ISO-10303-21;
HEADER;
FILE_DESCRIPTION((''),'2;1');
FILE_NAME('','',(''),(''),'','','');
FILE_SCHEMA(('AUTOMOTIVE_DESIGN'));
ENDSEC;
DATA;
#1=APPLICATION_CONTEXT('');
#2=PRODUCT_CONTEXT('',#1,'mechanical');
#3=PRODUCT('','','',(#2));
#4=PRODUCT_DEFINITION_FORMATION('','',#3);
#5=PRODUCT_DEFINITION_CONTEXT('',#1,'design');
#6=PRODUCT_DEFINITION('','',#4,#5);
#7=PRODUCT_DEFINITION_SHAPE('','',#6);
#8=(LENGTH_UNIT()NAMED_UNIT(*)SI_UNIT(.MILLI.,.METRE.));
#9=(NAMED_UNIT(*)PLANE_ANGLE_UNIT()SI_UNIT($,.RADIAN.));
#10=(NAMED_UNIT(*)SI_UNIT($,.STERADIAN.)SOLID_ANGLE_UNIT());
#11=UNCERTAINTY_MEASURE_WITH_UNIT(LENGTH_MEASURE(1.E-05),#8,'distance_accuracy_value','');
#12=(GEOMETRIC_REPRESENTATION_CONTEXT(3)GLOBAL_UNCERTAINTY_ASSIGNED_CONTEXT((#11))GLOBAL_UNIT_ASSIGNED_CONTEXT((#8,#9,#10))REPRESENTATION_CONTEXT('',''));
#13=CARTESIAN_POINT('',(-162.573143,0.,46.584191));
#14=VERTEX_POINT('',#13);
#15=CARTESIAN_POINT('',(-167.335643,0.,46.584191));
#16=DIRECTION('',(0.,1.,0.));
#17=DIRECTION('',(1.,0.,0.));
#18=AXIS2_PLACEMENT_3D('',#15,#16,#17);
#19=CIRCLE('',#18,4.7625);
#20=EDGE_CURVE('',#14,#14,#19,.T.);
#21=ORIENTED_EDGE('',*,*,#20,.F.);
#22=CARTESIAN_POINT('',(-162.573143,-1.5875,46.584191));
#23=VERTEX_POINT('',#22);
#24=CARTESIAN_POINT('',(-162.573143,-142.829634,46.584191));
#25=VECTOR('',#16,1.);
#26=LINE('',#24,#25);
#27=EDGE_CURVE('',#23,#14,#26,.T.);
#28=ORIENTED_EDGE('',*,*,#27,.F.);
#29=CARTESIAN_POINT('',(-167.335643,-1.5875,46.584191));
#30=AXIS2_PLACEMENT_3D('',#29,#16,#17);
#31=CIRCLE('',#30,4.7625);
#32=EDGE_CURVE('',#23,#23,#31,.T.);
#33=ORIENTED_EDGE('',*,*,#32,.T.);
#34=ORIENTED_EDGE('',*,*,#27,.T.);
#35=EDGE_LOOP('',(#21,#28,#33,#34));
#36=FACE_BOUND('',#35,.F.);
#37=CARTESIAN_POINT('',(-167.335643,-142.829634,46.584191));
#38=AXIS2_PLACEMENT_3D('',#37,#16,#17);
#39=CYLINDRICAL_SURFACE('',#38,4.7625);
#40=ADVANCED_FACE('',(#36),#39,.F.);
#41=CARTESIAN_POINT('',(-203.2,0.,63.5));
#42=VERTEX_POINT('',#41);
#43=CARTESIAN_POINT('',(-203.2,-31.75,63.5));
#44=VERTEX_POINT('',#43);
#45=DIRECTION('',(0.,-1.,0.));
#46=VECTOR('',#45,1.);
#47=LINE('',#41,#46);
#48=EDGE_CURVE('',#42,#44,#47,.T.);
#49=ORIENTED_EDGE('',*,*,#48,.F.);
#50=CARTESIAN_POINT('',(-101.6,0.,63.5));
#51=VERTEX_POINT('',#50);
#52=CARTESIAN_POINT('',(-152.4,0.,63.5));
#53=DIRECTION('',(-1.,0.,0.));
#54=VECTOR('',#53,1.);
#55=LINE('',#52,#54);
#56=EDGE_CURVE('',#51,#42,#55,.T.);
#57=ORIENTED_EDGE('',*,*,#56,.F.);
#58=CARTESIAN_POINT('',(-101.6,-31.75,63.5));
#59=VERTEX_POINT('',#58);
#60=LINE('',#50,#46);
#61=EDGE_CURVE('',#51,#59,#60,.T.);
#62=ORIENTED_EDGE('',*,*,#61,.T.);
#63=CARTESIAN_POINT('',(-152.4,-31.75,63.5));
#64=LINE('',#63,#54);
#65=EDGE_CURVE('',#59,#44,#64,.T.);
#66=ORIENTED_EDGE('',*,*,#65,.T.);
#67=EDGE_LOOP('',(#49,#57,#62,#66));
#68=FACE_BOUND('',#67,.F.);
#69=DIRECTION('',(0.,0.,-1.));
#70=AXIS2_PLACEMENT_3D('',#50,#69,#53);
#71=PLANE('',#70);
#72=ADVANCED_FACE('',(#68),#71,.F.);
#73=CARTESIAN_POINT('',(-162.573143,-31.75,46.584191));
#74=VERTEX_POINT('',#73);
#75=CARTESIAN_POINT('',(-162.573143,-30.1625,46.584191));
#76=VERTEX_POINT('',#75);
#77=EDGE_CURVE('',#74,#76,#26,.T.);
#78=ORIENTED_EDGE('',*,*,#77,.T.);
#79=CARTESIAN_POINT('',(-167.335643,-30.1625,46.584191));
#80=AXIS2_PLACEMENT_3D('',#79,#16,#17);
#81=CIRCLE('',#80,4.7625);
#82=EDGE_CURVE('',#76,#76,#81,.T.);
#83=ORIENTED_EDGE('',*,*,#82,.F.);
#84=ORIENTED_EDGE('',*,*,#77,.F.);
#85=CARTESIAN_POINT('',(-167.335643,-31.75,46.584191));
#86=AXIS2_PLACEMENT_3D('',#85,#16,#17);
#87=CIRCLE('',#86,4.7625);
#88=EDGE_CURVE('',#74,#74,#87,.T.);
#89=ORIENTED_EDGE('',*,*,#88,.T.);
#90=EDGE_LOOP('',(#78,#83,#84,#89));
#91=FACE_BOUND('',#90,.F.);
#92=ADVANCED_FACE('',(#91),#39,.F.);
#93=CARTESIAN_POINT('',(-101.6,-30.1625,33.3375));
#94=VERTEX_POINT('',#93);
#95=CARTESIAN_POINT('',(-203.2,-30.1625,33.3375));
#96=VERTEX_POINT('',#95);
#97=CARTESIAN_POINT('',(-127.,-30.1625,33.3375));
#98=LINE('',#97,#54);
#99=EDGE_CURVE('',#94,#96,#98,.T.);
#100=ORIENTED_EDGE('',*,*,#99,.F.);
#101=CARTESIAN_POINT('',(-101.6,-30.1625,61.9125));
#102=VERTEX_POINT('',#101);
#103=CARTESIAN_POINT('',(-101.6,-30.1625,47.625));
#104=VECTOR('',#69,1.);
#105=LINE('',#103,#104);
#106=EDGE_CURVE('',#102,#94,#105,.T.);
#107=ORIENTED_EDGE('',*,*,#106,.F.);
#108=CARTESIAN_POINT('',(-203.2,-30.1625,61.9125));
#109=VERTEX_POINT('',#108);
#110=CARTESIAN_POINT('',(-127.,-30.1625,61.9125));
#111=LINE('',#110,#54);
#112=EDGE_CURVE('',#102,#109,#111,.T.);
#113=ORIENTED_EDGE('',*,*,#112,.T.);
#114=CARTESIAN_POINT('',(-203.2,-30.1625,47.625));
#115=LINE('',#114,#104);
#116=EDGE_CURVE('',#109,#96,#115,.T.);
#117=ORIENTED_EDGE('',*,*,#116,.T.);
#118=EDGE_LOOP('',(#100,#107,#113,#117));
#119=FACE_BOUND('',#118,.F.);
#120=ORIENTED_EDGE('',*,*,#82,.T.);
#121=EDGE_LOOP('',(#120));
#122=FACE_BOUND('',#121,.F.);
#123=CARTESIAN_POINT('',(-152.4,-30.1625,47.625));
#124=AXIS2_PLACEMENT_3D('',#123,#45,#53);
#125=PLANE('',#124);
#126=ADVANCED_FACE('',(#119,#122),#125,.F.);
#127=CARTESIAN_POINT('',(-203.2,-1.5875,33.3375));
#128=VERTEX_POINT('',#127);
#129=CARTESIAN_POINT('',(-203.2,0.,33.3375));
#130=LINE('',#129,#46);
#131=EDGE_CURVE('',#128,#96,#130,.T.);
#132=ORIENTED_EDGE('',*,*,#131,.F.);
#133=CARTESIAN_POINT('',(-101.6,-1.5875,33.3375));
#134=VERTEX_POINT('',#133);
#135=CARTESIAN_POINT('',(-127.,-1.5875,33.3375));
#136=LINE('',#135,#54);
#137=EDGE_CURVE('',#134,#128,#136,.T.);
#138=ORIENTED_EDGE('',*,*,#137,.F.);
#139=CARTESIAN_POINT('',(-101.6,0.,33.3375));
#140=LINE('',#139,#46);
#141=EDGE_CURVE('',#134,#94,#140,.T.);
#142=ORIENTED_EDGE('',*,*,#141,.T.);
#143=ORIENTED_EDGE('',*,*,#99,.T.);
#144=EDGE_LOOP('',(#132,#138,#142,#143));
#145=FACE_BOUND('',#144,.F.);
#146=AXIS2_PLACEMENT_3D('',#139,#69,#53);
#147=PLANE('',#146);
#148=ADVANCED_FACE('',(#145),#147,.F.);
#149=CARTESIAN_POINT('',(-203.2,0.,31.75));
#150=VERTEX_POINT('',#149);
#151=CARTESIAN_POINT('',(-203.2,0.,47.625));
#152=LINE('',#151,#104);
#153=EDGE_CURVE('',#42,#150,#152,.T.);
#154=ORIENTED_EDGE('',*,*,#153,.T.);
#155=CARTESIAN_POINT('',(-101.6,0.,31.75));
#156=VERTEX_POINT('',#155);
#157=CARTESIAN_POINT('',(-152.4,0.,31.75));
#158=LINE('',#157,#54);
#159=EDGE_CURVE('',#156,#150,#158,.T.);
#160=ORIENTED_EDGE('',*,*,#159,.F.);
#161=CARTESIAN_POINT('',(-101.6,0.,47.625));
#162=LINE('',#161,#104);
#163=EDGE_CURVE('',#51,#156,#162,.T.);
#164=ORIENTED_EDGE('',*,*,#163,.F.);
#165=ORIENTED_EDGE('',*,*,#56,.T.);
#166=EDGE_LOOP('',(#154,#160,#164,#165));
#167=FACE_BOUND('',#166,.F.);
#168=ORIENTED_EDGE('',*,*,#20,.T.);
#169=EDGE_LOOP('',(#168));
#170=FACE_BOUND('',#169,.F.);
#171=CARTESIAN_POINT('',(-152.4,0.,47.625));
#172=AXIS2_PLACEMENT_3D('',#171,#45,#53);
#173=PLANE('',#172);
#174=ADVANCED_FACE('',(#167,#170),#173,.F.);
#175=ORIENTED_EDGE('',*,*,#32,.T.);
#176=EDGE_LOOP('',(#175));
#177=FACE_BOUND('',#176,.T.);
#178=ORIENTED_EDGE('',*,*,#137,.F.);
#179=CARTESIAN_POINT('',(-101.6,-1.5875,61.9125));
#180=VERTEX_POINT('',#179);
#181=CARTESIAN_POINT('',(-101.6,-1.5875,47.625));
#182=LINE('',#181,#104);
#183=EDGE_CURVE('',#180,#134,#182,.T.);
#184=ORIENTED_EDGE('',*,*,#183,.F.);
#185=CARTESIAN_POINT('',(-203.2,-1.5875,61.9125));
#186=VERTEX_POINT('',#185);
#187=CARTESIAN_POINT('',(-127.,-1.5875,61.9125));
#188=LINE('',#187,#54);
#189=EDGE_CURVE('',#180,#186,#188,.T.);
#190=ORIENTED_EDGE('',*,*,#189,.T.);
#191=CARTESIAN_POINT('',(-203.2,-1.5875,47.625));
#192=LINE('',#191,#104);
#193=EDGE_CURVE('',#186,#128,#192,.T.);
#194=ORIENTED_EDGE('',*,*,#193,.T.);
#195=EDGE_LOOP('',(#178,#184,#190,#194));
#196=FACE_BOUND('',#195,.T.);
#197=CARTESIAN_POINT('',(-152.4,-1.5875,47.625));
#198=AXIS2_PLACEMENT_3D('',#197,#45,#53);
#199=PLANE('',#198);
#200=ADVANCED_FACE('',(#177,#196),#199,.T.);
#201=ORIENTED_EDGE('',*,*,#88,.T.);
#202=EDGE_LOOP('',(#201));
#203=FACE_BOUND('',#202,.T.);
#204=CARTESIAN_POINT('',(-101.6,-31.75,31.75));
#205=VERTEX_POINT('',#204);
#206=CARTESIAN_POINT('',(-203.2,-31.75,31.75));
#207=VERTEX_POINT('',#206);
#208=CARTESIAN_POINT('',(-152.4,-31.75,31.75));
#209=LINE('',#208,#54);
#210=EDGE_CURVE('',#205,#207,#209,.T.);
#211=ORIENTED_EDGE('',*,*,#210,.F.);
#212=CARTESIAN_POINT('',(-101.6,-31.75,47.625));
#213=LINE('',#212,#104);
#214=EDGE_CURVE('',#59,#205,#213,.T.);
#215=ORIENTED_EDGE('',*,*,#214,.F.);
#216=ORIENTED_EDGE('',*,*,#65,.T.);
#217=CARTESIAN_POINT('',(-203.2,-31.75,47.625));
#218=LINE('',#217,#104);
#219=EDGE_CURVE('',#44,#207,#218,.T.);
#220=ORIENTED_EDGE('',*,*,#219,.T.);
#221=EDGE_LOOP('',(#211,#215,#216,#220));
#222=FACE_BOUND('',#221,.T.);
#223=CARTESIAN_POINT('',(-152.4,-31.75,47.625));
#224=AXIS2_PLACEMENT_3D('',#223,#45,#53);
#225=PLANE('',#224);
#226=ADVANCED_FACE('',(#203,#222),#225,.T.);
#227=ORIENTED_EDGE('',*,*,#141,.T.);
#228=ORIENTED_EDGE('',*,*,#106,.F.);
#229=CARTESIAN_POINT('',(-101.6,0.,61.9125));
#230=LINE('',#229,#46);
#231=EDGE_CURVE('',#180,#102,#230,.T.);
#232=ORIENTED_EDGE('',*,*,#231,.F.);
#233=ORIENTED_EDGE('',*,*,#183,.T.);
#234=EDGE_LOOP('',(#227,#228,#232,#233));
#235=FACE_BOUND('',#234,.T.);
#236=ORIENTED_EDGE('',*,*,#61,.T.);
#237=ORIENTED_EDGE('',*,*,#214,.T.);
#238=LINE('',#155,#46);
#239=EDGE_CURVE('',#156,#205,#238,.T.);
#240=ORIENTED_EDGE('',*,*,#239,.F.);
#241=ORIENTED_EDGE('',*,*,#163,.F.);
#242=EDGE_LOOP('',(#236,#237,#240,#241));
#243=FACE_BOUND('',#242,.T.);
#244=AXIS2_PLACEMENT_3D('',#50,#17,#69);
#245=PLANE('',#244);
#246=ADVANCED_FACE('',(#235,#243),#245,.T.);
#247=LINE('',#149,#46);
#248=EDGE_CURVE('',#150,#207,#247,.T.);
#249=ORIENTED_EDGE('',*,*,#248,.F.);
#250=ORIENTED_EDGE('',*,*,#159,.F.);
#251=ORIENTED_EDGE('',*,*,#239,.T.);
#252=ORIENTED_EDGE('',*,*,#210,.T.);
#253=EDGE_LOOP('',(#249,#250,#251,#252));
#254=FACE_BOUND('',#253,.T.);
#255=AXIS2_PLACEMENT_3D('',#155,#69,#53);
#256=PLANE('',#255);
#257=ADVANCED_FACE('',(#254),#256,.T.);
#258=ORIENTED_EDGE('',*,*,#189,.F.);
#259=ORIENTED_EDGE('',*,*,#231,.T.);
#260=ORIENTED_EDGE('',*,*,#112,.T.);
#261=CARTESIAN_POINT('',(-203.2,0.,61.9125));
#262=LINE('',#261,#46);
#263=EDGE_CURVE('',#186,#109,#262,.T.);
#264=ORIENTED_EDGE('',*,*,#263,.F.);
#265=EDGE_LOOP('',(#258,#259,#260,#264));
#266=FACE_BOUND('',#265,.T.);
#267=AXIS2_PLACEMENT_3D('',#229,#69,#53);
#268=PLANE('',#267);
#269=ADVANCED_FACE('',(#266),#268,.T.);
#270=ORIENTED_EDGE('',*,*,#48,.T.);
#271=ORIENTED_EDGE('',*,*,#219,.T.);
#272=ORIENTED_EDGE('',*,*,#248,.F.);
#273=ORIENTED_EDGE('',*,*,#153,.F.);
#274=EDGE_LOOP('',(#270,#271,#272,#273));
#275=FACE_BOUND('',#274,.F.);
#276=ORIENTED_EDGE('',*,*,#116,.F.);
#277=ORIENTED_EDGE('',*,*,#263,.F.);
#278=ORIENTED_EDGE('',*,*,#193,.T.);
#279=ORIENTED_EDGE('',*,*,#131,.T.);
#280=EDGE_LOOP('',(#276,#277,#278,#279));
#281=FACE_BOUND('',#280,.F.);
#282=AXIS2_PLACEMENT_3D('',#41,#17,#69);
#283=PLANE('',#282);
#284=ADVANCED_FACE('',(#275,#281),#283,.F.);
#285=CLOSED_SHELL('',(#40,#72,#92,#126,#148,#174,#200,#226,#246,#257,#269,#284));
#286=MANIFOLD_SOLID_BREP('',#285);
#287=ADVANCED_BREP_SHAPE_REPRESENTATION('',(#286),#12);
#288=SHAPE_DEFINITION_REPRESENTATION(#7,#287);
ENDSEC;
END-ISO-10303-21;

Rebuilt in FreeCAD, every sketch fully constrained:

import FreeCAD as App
import Part
import Sketcher

V = App.Vector
Q = App.Units.Quantity


def faces_at(feature, points):
    """Names of the faces that lie closest to the given points."""
    faces = feature.Shape.Faces
    near = lambda p: min(range(len(faces)), key=lambda i: faces[i].distToShape(Part.Vertex(*p))[0])
    return sorted({f"Face{near(p) + 1}" for p in points})


def add_polygon(sketch, points):
    """Adds a closed chain of lines whose ends are joined by coincident constraints."""
    first, n = sketch.GeometryCount, len(points)
    for a, b in zip(points, points[1:] + points[:1]):
        sketch.addGeometry(Part.LineSegment(App.Vector(*a, 0), App.Vector(*b, 0)), False)
    for i in range(n):
        sketch.addConstraint(Sketcher.Constraint("Coincident", first + i, 2, first + (i + 1) % n, 1))

doc = App.newDocument("Part")
body = doc.addObject("PartDesign::Body", "Body")

# Sketch on XY plane
sketch1 = body.newObject("Sketcher::SketchObject", "Sketch")
sketch1.AttachmentSupport = (doc.getObject("XY_Plane"), [""])
sketch1.MapMode = "FlatFace"
add_polygon(sketch1, [(-102, 32), (-102, 0), (0, 0), (0, 32)])  # lines 0-3
sketch1.addConstraint([
    Sketcher.Constraint("Vertical", 0),
    Sketcher.Constraint("Horizontal", 1),
    Sketcher.Constraint("Vertical", 2),
    Sketcher.Constraint("Horizontal", 3),
    Sketcher.Constraint("Coincident", 1, 2, -1, 1),
    Sketcher.Constraint("DistanceX", 1, 1, 1, 2, Q("4 in")),
    Sketcher.Constraint("DistanceY", 0, 2, 0, 1, Q("1.25 in")),
])
pad1 = body.newObject("PartDesign::Pad", "Pad")
pad1.Profile = sketch1
pad1.Length = Q("1.25 in")
doc.recompute()

thickness = body.newObject("PartDesign::Thickness", "Thickness")
thickness.Base = (pad1, faces_at(pad1, [(-101.6, 15.875, 15.875), (0, 15.875, 15.875)]))
thickness.Value = Q("0.0625 in")
thickness.Reversed = True
thickness.Join = "Arc"

# Sketch on XY plane
sketch2 = body.newObject("Sketcher::SketchObject", "Sketch001")
sketch2.AttachmentSupport = (doc.getObject("XY_Plane"), [""])
sketch2.MapMode = "FlatFace"
sketch2.AttachmentOffset = App.Placement(V(0, 0, 1.25 * 25.4), App.Rotation())
sketch2.addGeometry(Part.Circle(V(-35.9, 16.9, 0), V(0, 0, 1), 4.8), False)
sketch2.addConstraint([
    Sketcher.Constraint("Diameter", 0, Q("0.375 in")),
    Sketcher.Constraint("DistanceY", -1, 1, 0, 3, Q("16.915809 mm")),
    Sketcher.Constraint("DistanceX", 0, 3, -1, 1, Q("35.864357 mm")),
])
doc.recompute()
hole = body.newObject("PartDesign::Hole", "Hole")
hole.Profile = sketch2
hole.ThreadType = "None"
hole.Diameter = Q("0.375 in")
hole.DepthType = "ThroughAll"
body2 = doc.addObject("PartDesign::Body", "Body001")
doc.recompute()

body.Placement = App.Placement(V(0, 0, 63.5), App.Rotation(V(-1, 0, 0), 90))
boolean = body2.newObject("PartDesign::Boolean", "Boolean")
boolean.Type = "Fuse"
boolean.addObjects([body])
body3 = doc.addObject("PartDesign::Body", "Body002")
doc.recompute()

body2.Placement = App.Placement(V(-203.2, 0, 0), App.Rotation(V(0, 0, -1), 180))
boolean2 = body3.newObject("PartDesign::Boolean", "Boolean001")
boolean2.Type = "Fuse"
boolean2.addObjects([body2])

doc.recompute()
